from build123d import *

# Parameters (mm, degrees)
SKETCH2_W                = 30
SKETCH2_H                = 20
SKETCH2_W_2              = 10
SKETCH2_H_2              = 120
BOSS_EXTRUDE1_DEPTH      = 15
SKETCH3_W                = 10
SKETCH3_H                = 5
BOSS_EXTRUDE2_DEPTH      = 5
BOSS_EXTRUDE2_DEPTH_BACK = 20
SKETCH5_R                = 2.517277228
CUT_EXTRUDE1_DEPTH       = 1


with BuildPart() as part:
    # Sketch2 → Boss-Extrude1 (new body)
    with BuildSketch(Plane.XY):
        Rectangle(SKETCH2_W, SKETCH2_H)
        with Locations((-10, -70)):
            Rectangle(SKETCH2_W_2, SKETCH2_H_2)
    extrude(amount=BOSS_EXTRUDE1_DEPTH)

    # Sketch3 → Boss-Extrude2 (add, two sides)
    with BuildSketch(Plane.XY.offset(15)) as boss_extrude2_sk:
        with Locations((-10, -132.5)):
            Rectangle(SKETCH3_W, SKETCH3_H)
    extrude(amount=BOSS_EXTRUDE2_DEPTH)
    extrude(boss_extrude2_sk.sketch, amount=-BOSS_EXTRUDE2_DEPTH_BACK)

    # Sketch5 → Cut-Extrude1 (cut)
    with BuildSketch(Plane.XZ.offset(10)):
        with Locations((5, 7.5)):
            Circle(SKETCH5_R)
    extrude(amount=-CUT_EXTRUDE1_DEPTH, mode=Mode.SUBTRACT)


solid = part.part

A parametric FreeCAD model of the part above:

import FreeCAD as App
import Part
import Sketcher
Q = App.Units.Quantity

doc = App.newDocument("Part")
body = doc.addObject("PartDesign::Body", "Body")

# Sketch on XY plane
sketch1 = body.newObject("Sketcher::SketchObject", "Sketch")
sketch1.AttachmentSupport = (doc.getObject("XY_Plane"), [""])
sketch1.MapMode = "FlatFace"
sketch1.addGeometry([
    Part.LineSegment(App.Vector(-15, 10, 0), App.Vector(-15, -130, 0)),  # 0
    Part.LineSegment(App.Vector(-15, -130, 0), App.Vector(-5, -130, 0)),  # 1
    Part.LineSegment(App.Vector(-5, -130, 0), App.Vector(-5, -10, 0)),  # 2
    Part.LineSegment(App.Vector(-5, -10, 0), App.Vector(15, -10, 0)),  # 3
    Part.LineSegment(App.Vector(15, -10, 0), App.Vector(15, 10, 0)),  # 4
    Part.LineSegment(App.Vector(15, 10, 0), App.Vector(-15, 10, 0)),  # 5
], False)
sketch1.addConstraint([
    Sketcher.Constraint("Coincident", 0, 2, 1, 1),
    Sketcher.Constraint("Coincident", 1, 2, 2, 1),
    Sketcher.Constraint("Coincident", 2, 2, 3, 1),
    Sketcher.Constraint("Coincident", 3, 2, 4, 1),
    Sketcher.Constraint("Coincident", 4, 2, 5, 1),
    Sketcher.Constraint("Coincident", 5, 2, 0, 1),
    Sketcher.Constraint("Vertical", 0),
    Sketcher.Constraint("Horizontal", 1),
    Sketcher.Constraint("Vertical", 2),
    Sketcher.Constraint("Horizontal", 3),
    Sketcher.Constraint("Vertical", 4),
    Sketcher.Constraint("Horizontal", 5),
    Sketcher.Constraint("Symmetric", 3, 2, 5, 2, -1, 1),
    Sketcher.Constraint("Equal", 3, 4),
    Sketcher.Constraint("DistanceX", 1, 1, 1, 2, Q("10 mm")),
    Sketcher.Constraint("DistanceX", 3, 1, 3, 2, Q("20 mm")),
    Sketcher.Constraint("DistanceY", 0, 2, 0, 1, Q("140 mm")),
])
pad1 = body.newObject("PartDesign::Pad", "Pad")
pad1.Profile = sketch1
pad1.Length = 15

# Sketch on XY plane
sketch2 = body.newObject("Sketcher::SketchObject", "Sketch001")
sketch2.AttachmentSupport = (doc.getObject("XY_Plane"), [""])
sketch2.MapMode = "FlatFace"
sketch2.AttachmentOffset = App.Placement(App.Vector(0, 0, 15), App.Rotation())
sketch2.addGeometry([
    Part.LineSegment(App.Vector(-15, -130, 0), App.Vector(-15, -135, 0)),
    Part.LineSegment(App.Vector(-15, -135, 0), App.Vector(-5, -135, 0)),
    Part.LineSegment(App.Vector(-5, -135, 0), App.Vector(-5, -130, 0)),
    Part.LineSegment(App.Vector(-5, -130, 0), App.Vector(-15, -130, 0)),
], False)
sketch2.addConstraint([
    Sketcher.Constraint("Coincident", 0, 2, 1, 1),
    Sketcher.Constraint("Coincident", 1, 2, 2, 1),
    Sketcher.Constraint("Coincident", 2, 2, 3, 1),
    Sketcher.Constraint("Coincident", 3, 2, 0, 1),
    Sketcher.Constraint("Vertical", 0),
    Sketcher.Constraint("Horizontal", 1),
    Sketcher.Constraint("Vertical", 2),
    Sketcher.Constraint("Horizontal", 3),
    Sketcher.Constraint("DistanceX", 1, 1, 1, 2, Q("10 mm")),
    Sketcher.Constraint("DistanceY", 0, 2, 0, 1, Q("5 mm")),
    Sketcher.Constraint("DistanceX", 0, 2, -1, 1, Q("15 mm")),
    Sketcher.Constraint("DistanceY", 0, 2, -1, 1, Q("135 mm")),
])
pad2 = body.newObject("PartDesign::Pad", "Pad001")
pad2.Profile = sketch2
pad2.Type = "TwoLengths"
pad2.Length = 5
pad2.Length2 = 20

# Sketch on XZ plane
sketch3 = body.newObject("Sketcher::SketchObject", "Sketch002")
sketch3.AttachmentSupport = (doc.getObject("XZ_Plane"), [""])
sketch3.MapMode = "FlatFace"
sketch3.AttachmentOffset = App.Placement(App.Vector(0, 0, 10), App.Rotation())
sketch3.addGeometry(Part.Circle(App.Vector(5, 7.5, 0), App.Vector(0, 0, 1), 2.517277), False)
sketch3.addConstraint([
    Sketcher.Constraint("DistanceX", -1, 1, 0, 3, Q("5 mm")),
    Sketcher.Constraint("DistanceY", -1, 1, 0, 3, Q("7.5 mm")),
    Sketcher.Constraint("Diameter", 0, Q("5.034554 mm")),
])
pocket1 = body.newObject("PartDesign::Pocket", "Pocket")
pocket1.Profile = sketch3
pocket1.Length = 1

doc.recompute()
